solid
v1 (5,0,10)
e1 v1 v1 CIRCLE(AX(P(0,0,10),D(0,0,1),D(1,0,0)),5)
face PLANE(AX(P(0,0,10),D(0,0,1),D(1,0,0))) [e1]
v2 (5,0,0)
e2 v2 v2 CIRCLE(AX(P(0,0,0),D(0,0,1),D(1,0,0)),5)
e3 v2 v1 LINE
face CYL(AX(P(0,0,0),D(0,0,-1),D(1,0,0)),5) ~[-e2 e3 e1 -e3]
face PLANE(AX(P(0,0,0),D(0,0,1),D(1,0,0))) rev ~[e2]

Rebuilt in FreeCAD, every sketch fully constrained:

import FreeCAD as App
import Part
import Sketcher

V = App.Vector

doc = App.newDocument("Part")
params = doc.addObject("Spreadsheet::Sheet", "Params")
for row, (alias, value) in enumerate([
    ("sketch1_diameter", "10 mm"),
    ("pad1_length", "10 mm"),
], start=1):
    params.set(f"A{row}", alias)
    params.set(f"B{row}", "=" + value)
    params.setAlias(f"B{row}", alias)

body = doc.addObject("PartDesign::Body", "Body")

sketch1 = doc.addObject("Sketcher::SketchObject", "Sketch")
body.addObject(sketch1)
sketch1.AttachmentSupport = (doc.XY_Plane, [""])
sketch1.MapMode = "FlatFace"
sketch1.addGeometry(Part.Circle(V(0, 0, 0), V(0, 0, 1), 5), False)
sketch1.addConstraint([
    Sketcher.Constraint("Coincident", 0, 3, -1, 1),
    Sketcher.Constraint("Diameter", 0, 10.0),
])
sketch1.setExpression("Constraints[1]", "Params.sketch1_diameter")
pad1 = doc.addObject("PartDesign::Pad", "Pad")
body.addObject(pad1)
pad1.Profile = sketch1
pad1.setExpression("Length", "Params.pad1_length")

doc.recompute()
